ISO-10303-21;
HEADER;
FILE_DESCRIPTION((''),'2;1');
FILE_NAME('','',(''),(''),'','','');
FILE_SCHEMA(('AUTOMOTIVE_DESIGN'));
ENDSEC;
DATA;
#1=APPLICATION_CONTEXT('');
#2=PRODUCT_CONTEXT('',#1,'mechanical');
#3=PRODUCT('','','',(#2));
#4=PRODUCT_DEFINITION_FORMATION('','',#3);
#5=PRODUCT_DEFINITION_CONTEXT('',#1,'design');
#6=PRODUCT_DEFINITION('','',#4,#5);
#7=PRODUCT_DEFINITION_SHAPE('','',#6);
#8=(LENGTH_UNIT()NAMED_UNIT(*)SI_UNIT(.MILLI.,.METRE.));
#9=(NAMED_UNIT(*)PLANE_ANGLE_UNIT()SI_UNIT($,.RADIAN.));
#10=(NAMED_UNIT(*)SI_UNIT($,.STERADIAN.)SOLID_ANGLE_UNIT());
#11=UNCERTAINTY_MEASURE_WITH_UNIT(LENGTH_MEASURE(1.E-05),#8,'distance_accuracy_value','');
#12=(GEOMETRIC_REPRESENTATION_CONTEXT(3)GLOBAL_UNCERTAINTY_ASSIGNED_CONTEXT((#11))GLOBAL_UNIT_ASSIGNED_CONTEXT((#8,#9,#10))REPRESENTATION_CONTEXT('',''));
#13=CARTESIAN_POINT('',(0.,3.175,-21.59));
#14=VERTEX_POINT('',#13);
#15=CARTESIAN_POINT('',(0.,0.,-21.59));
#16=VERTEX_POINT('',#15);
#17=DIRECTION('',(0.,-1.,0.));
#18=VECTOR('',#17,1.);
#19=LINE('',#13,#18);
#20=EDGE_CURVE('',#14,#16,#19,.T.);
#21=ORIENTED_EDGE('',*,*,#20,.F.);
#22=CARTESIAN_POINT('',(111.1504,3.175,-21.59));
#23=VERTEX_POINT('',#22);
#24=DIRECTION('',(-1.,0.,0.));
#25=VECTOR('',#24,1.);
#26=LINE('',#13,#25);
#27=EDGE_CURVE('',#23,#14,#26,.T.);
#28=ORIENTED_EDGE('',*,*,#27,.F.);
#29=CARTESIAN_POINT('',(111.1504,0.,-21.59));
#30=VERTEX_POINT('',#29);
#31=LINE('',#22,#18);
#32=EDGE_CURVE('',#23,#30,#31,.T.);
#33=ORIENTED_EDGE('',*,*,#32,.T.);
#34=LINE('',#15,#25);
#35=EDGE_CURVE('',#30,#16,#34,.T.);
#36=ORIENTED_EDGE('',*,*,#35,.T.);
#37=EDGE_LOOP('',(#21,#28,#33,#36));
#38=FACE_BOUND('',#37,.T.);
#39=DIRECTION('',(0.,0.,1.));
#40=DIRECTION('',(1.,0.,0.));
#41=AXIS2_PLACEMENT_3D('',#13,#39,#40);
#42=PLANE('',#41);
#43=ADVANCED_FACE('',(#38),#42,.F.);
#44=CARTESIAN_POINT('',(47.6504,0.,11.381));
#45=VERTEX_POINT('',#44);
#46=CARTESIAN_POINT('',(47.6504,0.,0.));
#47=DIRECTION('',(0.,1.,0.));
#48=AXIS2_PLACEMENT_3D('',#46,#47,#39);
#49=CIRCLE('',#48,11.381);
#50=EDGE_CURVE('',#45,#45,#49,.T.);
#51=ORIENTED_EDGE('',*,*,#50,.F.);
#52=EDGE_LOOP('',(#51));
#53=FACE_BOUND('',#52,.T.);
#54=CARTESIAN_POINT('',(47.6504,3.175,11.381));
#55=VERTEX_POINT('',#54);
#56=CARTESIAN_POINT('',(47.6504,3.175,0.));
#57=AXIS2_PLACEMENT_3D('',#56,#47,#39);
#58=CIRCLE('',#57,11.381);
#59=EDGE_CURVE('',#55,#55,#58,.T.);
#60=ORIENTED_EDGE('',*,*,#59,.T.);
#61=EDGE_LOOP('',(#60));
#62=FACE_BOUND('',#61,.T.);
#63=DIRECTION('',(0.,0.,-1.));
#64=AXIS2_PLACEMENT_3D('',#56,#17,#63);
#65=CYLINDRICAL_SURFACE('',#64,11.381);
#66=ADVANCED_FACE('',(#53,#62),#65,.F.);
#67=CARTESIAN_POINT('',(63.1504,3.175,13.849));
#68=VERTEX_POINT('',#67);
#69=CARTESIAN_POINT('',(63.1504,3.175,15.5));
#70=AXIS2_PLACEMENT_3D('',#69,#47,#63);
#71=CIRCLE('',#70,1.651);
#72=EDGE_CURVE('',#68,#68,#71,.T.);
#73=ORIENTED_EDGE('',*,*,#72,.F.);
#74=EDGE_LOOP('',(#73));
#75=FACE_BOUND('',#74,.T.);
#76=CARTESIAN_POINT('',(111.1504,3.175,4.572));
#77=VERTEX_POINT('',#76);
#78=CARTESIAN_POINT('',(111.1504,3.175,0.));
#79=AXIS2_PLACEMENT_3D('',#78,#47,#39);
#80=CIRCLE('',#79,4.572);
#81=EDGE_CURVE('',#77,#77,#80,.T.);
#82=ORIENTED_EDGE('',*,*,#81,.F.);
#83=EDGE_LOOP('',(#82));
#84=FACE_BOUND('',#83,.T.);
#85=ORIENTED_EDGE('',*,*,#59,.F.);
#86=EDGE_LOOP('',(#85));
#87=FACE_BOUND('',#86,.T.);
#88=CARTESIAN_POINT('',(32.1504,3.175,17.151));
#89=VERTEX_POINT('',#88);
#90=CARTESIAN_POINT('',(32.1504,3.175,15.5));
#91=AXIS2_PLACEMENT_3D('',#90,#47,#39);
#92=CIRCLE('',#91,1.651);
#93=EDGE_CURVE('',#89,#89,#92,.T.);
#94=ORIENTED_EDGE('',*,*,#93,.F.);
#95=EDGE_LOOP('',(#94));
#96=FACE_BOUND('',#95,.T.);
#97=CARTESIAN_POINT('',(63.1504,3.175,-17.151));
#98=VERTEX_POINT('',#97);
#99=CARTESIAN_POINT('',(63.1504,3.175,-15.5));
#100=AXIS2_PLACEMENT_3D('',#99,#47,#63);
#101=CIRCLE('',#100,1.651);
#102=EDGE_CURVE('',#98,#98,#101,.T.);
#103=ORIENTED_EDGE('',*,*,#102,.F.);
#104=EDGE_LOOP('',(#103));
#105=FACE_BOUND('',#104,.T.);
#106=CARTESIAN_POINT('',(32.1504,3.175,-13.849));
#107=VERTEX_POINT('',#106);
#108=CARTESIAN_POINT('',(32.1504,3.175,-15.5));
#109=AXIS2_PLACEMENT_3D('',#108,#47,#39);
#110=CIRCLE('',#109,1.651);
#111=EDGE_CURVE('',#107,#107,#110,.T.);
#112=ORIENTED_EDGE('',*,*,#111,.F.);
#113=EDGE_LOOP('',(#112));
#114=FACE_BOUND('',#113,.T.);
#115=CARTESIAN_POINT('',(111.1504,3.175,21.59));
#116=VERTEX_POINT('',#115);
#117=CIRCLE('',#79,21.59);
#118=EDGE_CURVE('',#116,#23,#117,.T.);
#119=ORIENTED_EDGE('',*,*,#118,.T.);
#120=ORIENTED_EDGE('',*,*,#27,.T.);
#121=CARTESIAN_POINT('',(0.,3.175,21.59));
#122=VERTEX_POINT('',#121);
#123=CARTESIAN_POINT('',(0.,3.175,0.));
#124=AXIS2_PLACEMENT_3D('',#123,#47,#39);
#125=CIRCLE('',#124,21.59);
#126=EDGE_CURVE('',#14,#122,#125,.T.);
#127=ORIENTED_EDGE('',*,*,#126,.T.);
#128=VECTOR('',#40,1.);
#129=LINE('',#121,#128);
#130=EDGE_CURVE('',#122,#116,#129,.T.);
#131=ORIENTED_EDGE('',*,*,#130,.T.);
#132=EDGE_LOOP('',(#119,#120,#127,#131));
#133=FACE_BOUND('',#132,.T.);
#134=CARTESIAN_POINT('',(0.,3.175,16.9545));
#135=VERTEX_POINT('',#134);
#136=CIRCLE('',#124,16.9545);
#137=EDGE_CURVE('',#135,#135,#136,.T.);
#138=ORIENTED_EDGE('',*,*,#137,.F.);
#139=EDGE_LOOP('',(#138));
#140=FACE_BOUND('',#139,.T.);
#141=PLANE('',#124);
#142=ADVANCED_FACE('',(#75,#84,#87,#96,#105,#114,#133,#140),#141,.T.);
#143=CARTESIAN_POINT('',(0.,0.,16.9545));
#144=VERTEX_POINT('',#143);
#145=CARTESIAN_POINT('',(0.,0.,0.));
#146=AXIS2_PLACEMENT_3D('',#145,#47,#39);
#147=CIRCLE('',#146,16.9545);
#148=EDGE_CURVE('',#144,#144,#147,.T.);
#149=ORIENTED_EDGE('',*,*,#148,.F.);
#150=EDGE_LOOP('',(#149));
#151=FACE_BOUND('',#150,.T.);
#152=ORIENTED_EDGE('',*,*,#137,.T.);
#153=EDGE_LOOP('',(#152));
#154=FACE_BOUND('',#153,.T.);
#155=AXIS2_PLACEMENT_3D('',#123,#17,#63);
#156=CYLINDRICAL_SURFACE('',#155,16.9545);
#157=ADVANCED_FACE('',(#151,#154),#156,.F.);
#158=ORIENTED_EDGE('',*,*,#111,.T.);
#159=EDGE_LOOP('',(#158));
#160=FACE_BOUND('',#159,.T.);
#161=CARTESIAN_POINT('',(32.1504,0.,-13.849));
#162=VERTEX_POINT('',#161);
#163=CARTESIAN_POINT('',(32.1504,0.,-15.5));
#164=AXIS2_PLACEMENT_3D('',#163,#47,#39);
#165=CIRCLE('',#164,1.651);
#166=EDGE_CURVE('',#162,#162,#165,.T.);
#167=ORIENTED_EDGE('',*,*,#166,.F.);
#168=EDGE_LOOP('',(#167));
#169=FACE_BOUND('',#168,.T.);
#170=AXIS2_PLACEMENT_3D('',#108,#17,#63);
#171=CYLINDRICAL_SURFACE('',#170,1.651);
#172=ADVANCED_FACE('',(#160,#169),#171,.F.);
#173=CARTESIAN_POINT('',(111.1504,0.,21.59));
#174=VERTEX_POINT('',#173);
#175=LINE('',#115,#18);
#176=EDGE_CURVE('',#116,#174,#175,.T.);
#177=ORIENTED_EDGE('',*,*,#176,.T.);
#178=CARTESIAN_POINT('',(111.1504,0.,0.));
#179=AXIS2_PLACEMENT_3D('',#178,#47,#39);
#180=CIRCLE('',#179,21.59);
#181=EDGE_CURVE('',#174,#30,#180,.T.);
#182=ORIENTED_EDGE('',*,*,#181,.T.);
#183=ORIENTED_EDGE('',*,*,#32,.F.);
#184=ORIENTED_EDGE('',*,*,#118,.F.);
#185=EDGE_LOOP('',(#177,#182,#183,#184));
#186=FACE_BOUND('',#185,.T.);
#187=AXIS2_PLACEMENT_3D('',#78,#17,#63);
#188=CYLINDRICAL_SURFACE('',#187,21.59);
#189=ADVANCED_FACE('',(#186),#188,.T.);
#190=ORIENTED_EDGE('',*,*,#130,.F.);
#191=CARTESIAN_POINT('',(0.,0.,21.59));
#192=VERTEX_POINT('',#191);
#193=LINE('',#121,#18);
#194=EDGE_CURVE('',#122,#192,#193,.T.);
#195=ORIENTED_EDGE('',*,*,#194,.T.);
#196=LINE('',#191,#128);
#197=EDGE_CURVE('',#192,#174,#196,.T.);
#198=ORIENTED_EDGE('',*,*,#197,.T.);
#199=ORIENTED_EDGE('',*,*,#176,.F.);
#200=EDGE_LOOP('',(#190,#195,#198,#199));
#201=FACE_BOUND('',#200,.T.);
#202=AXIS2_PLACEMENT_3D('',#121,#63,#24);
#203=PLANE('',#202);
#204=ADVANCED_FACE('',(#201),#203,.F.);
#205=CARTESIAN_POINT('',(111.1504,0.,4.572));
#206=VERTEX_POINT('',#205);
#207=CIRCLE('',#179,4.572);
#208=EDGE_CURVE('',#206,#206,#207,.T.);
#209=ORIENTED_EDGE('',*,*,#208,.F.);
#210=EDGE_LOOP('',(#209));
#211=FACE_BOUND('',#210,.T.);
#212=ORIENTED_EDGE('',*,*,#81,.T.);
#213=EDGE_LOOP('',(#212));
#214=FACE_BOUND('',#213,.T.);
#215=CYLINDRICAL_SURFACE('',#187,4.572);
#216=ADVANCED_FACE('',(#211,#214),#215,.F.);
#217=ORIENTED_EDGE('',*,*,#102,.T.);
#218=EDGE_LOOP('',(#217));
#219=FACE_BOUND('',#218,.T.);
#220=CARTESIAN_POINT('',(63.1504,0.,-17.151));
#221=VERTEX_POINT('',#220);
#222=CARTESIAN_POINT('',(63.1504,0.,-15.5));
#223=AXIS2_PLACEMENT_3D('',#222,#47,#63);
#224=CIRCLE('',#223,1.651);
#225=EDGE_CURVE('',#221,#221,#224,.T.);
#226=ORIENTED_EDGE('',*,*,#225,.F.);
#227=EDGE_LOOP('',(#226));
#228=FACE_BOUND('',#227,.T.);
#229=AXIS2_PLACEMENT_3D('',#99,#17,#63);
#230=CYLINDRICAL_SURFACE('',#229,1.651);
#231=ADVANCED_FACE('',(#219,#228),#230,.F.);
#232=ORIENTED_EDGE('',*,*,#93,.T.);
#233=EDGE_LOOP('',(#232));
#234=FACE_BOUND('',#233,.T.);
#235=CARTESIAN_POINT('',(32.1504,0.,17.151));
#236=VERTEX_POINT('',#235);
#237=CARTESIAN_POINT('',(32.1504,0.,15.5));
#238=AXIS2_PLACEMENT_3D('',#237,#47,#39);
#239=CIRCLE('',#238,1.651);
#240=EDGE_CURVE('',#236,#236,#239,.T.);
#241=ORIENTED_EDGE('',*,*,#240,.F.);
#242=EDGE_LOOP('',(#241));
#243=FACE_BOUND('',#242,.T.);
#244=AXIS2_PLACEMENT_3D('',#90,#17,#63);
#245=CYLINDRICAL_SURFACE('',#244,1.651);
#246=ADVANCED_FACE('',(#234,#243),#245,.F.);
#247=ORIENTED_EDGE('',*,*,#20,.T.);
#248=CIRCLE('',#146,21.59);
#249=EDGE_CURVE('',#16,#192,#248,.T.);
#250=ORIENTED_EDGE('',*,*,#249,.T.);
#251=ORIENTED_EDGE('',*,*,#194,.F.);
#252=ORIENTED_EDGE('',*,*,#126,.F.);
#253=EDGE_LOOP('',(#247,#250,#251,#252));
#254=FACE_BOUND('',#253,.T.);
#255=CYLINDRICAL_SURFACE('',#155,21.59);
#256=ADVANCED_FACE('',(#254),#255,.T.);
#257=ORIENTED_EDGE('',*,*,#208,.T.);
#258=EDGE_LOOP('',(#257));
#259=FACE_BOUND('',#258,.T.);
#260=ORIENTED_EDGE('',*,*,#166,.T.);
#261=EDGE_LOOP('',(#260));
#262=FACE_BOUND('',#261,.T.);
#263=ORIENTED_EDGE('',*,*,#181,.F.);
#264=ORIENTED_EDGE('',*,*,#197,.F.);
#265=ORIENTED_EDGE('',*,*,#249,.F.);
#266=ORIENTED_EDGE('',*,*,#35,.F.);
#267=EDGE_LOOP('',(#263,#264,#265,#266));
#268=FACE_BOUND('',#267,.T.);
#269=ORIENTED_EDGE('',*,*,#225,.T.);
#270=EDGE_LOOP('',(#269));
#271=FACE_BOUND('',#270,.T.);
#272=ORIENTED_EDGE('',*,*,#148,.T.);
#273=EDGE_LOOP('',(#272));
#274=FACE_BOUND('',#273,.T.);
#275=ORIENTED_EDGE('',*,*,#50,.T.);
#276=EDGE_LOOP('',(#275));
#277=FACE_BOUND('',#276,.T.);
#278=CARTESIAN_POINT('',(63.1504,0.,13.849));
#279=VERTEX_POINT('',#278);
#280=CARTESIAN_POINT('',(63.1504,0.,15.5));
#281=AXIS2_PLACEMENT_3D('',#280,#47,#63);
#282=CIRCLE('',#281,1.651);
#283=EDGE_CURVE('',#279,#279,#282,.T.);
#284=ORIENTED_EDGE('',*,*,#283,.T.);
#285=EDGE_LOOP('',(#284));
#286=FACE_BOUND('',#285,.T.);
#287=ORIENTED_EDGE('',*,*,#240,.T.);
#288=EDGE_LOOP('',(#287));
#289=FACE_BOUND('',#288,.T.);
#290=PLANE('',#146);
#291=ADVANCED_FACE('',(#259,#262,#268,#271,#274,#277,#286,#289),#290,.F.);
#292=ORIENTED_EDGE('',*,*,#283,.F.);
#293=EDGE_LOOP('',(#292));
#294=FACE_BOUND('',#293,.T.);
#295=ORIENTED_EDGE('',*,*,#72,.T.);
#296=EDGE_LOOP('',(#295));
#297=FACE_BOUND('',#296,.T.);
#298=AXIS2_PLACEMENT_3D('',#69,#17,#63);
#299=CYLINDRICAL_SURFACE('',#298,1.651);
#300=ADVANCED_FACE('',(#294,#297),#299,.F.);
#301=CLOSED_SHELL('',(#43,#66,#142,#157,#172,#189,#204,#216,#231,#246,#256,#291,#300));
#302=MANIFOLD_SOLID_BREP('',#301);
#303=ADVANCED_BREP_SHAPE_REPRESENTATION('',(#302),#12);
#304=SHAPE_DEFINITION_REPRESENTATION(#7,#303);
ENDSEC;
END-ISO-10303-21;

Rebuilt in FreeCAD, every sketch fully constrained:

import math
import FreeCAD as App
import Part
import Sketcher
Q = App.Units.Quantity

doc = App.newDocument("Part")
body = doc.addObject("PartDesign::Body", "Body")

# Sketch on XZ plane
sketch1 = doc.addObject("Sketcher::SketchObject", "Sketch")
body.addObject(sketch1)
sketch1.AttachmentSupport = (doc.XZ_Plane, [""])
sketch1.MapMode = "FlatFace"
sketch1.addGeometry(Part.LineSegment(App.Vector(111.2, -21.6, 0), App.Vector(0, -21.6, 0)), False)
sketch1.addGeometry(Part.ArcOfCircle(Part.Circle(App.Vector(0, 0, 0), App.Vector(0, 0, 1), 21.6), math.radians(90), math.radians(270)), False)
sketch1.addGeometry(Part.LineSegment(App.Vector(0, 21.6, 0), App.Vector(111.2, 21.6, 0)), False)
sketch1.addGeometry(Part.ArcOfCircle(Part.Circle(App.Vector(111.2, 0, 0), App.Vector(0, 0, 1), 21.6), math.radians(-90), math.radians(90)), False)
sketch1.addGeometry(Part.Circle(App.Vector(63.2, 15.5, 0), App.Vector(0, 0, 1), 1.7), False)
sketch1.addGeometry(Part.Circle(App.Vector(32.2, 15.5, 0), App.Vector(0, 0, 1), 1.7), False)
sketch1.addGeometry(Part.Circle(App.Vector(111.2, 0, 0), App.Vector(0, 0, 1), 4.6), False)
sketch1.addGeometry(Part.Circle(App.Vector(63.2, -15.5, 0), App.Vector(0, 0, 1), 1.7), False)
sketch1.addGeometry(Part.Circle(App.Vector(47.7, 0, 0), App.Vector(0, 0, 1), 11.4), False)
sketch1.addGeometry(Part.Circle(App.Vector(0, 0, 0), App.Vector(0, 0, 1), 17), False)
sketch1.addGeometry(Part.Circle(App.Vector(32.2, -15.5, 0), App.Vector(0, 0, 1), 1.7), False)
sketch1.addConstraint(Sketcher.Constraint("Tangent", 0, 2, 1, 2))
sketch1.addConstraint(Sketcher.Constraint("Tangent", 1, 1, 2, 1))
sketch1.addConstraint(Sketcher.Constraint("Tangent", 2, 2, 3, 2))
sketch1.addConstraint(Sketcher.Constraint("Tangent", 3, 1, 0, 1))
sketch1.addConstraint(Sketcher.Constraint("Horizontal", 0))
sketch1.addConstraint(Sketcher.Constraint("Horizontal", 2))
sketch1.addConstraint(Sketcher.Constraint("Coincident", 1, 3, -1, 1))
sketch1.addConstraint(Sketcher.Constraint("Coincident", 9, 3, -1, 1))
sketch1.addConstraint(Sketcher.Constraint("Coincident", 6, 3, 3, 3))
sketch1.addConstraint(Sketcher.Constraint("Equal", 4, 5))
sketch1.addConstraint(Sketcher.Constraint("Equal", 5, 7))
sketch1.addConstraint(Sketcher.Constraint("Equal", 7, 10))
sketch1.addConstraint(Sketcher.Constraint("Symmetric", 4, 3, 7, 3, -1))
sketch1.addConstraint(Sketcher.Constraint("Symmetric", 5, 3, 10, 3, -1))
sketch1.addConstraint(Sketcher.Constraint("PointOnObject", 8, 3, -1))
sketch1.addConstraint(Sketcher.Constraint("Horizontal", 4, 3, 5, 3))
sketch1.addConstraint(Sketcher.Constraint("Diameter", 4, Q("0.13 in")))
sketch1.addConstraint(Sketcher.Constraint("Diameter", 6, Q("0.36 in")))
sketch1.addConstraint(Sketcher.Constraint("Radius", 1, Q("0.85 in")))
sketch1.addConstraint(Sketcher.Constraint("Diameter", 9, Q("1.335 in")))
sketch1.addConstraint(Sketcher.Constraint("DistanceX", 8, 3, 3, 3, Q("2.5 in")))
sketch1.addConstraint(Sketcher.Constraint("Diameter", 8, 22.762))
sketch1.addConstraint(Sketcher.Constraint("DistanceX", 0, 2, 0, 1, Q("4.376 in")))
sketch1.addConstraint(Sketcher.Constraint("DistanceX", -1, 1, 4, 3, 63.1504))
sketch1.addConstraint(Sketcher.Constraint("DistanceY", -1, 1, 4, 3, 15.5))
sketch1.addConstraint(Sketcher.Constraint("DistanceX", -1, 1, 5, 3, 32.1504))
pad1 = doc.addObject("PartDesign::Pad", "Pad")
body.addObject(pad1)
pad1.Profile = sketch1
pad1.Length = Q("0.125 in")
pad1.Reversed = True

doc.recompute()
